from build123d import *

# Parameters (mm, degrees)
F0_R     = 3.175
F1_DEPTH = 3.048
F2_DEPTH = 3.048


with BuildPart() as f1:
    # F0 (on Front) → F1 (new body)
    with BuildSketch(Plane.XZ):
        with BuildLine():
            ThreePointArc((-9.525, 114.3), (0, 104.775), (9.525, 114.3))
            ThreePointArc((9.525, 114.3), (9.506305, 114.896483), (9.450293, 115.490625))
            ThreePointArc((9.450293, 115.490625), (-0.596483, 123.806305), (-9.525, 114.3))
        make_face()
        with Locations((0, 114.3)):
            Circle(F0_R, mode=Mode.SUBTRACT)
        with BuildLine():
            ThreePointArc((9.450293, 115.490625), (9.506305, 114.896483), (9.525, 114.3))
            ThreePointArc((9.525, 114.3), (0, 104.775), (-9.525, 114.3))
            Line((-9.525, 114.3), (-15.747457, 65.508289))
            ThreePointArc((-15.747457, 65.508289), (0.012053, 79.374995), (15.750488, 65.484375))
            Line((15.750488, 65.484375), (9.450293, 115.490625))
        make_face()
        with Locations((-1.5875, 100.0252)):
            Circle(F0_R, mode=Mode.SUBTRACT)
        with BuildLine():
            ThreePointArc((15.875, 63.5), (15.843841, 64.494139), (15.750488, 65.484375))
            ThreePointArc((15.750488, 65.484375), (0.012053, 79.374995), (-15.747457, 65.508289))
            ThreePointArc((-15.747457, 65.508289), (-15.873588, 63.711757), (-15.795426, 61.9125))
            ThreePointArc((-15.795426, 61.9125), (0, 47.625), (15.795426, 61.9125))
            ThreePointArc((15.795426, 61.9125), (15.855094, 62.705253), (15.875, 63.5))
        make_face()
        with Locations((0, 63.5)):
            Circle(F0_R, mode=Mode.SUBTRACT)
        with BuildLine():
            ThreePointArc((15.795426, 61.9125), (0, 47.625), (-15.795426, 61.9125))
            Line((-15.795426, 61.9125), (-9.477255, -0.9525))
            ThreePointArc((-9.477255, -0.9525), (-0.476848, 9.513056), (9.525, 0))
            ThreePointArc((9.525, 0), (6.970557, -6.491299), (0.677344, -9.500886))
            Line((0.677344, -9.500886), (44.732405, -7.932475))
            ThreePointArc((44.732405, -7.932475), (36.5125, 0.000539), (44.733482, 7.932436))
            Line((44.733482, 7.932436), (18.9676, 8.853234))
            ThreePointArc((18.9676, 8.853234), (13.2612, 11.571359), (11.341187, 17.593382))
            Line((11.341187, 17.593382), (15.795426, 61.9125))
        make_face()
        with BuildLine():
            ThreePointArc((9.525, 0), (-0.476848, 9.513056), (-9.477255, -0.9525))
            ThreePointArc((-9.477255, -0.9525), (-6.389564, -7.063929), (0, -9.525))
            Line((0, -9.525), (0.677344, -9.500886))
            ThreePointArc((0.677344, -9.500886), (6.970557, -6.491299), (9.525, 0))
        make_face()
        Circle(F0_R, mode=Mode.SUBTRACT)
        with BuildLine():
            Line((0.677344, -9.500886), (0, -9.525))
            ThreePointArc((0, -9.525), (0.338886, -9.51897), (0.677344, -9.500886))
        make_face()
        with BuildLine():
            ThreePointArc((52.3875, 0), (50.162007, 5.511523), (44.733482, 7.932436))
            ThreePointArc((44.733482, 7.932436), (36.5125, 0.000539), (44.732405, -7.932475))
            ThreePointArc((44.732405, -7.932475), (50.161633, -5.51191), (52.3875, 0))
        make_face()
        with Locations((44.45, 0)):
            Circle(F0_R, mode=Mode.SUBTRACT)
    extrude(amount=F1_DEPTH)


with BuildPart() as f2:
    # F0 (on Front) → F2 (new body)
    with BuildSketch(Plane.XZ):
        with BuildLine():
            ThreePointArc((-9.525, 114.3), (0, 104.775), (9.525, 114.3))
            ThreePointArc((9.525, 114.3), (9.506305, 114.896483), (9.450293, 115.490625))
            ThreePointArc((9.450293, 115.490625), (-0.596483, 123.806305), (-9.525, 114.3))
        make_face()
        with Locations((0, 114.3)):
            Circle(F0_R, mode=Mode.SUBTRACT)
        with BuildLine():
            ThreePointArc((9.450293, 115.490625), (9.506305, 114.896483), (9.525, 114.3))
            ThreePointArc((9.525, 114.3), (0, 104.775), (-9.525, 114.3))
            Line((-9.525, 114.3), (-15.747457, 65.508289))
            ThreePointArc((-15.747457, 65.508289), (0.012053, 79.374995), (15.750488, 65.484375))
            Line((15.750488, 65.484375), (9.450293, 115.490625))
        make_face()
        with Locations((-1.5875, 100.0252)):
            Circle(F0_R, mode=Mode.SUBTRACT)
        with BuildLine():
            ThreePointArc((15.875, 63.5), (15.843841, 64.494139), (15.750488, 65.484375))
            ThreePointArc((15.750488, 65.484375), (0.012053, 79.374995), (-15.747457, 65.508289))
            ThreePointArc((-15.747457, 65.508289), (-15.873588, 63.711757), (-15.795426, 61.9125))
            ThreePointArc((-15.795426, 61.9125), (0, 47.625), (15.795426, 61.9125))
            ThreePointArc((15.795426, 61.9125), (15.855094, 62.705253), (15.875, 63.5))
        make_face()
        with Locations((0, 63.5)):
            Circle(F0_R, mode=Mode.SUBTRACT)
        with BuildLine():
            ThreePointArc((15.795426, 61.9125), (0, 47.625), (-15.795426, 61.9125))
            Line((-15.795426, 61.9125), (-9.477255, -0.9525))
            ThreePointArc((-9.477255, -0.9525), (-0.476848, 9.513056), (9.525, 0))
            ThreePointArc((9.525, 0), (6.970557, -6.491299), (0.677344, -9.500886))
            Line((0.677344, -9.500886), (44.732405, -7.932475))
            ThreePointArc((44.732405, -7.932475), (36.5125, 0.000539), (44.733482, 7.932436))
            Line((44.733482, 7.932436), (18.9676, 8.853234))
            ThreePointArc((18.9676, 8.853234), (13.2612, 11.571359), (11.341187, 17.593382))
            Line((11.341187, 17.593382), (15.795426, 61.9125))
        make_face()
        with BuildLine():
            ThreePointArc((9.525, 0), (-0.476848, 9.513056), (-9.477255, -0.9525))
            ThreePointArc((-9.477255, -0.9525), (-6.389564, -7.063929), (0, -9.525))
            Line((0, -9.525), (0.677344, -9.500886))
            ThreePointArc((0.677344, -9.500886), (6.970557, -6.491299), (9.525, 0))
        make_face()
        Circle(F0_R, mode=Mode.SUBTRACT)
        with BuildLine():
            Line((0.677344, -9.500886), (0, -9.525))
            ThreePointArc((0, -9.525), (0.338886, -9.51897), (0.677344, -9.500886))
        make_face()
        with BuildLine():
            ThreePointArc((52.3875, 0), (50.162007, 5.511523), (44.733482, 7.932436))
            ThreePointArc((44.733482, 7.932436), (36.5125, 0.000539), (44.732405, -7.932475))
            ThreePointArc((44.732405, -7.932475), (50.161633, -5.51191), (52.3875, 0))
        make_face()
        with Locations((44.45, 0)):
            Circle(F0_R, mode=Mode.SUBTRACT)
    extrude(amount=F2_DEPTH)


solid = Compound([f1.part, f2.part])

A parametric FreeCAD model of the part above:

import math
import FreeCAD as App
import Part
import Sketcher
Q = App.Units.Quantity

doc = App.newDocument("Part")
params = doc.addObject("Spreadsheet::Sheet", "Params")
for row, (alias, value) in enumerate([
    ("sketch1_diameter", "0.25 in"),
    ("sketch1_diameter2", "0.25 in"),
    ("sketch1_diameter3", "0.25 in"),
    ("sketch1_diameter4", "0.25 in"),
    ("sketch1_diameter5", "0.25 in"),
    ("pad1_length", "0.12 in"),
    ("sketch2_diameter", "0.25 in"),
    ("sketch2_diameter2", "0.25 in"),
    ("sketch2_diameter3", "0.25 in"),
    ("sketch2_diameter4", "0.25 in"),
    ("sketch2_diameter5", "0.25 in"),
    ("pad2_length", "0.12 in"),
], start=1):
    params.set(f"A{row}", alias)
    params.set(f"B{row}", "=" + value)
    params.setAlias(f"B{row}", alias)

body = doc.addObject("PartDesign::Body", "Body")

# Sketch on XZ plane
sketch1 = body.newObject("Sketcher::SketchObject", "Sketch")
sketch1.AttachmentSupport = (doc.getObject("XZ_Plane"), [""])
sketch1.MapMode = "FlatFace"
sketch1.addGeometry([
    Part.ArcOfCircle(Part.Circle(App.Vector(0, 114.3, 0), App.Vector(0, 0, 1), 9.525), math.radians(7.180755), math.radians(180)),  # 0
    Part.LineSegment(App.Vector(-9.525, 114.3, 0), App.Vector(-15.747457, 65.508289, 0)),  # 1
    Part.ArcOfCircle(Part.Circle(App.Vector(-0.000021, 63.499999, 0), App.Vector(0, 0, 1), 15.874979), math.radians(172.732229), math.radians(185.739173)),  # 2
    Part.LineSegment(App.Vector(-15.795426, 61.9125, 0), App.Vector(-9.477255, -0.9525, 0)),  # 3
    Part.ArcOfCircle(Part.Circle(App.Vector(0, 0, 0), App.Vector(0, 0, 1), 9.525), math.radians(-174.26083), math.radians(-90.000002)),  # 4
    Part.ArcOfCircle(Part.Circle(App.Vector(0.000022, -0.000517, 0), App.Vector(0, 0, 1), 9.524483), math.radians(-90.000132), math.radians(-85.922038)),  # 5
    Part.LineSegment(App.Vector(0.677344, -9.500886, 0), App.Vector(44.732405, -7.932475, 0)),  # 6
    Part.ArcOfCircle(Part.Circle(App.Vector(44.449999, 0.000001, 0), App.Vector(0, 0, 1), 7.937501), math.radians(-87.961059), math.radians(-0.000005)),  # 7
    Part.ArcOfCircle(Part.Circle(App.Vector(44.450001, 0.000001, 0), App.Vector(0, 0, 1), 7.937499), math.radians(-0.000005), math.radians(87.953294)),  # 8
    Part.LineSegment(App.Vector(44.733482, 7.932436, 0), App.Vector(18.9676, 8.853234, 0)),  # 9
    Part.ArcOfCircle(Part.Circle(App.Vector(19.251535, 16.798361, 0), App.Vector(0, 0, 1), 7.950199), math.radians(174.260822), math.radians(267.953292)),  # 10
    Part.LineSegment(App.Vector(11.341187, 17.593382, 0), App.Vector(15.795426, 61.9125, 0)),  # 11
    Part.ArcOfCircle(Part.Circle(App.Vector(-0.000084, 63.5, 0), App.Vector(0, 0, 1), 15.875084), math.radians(-5.73914), math.radians(0)),  # 12
    Part.ArcOfCircle(Part.Circle(App.Vector(-0.000171, 63.499987, 0), App.Vector(0, 0, 1), 15.875171), math.radians(0.000047), math.radians(7.180725)),  # 13
    Part.LineSegment(App.Vector(15.750488, 65.484375, 0), App.Vector(9.450293, 115.490625, 0)),  # 14
    Part.Circle(App.Vector(0, 0, 0), App.Vector(0, 0, 1), 3.175),  # 15
    Part.Circle(App.Vector(44.45, 0, 0), App.Vector(0, 0, 1), 3.175),  # 16
    Part.Circle(App.Vector(0, 63.5, 0), App.Vector(0, 0, 1), 3.175),  # 17
    Part.Circle(App.Vector(-1.5875, 100.0252, 0), App.Vector(0, 0, 1), 3.175),  # 18
    Part.Circle(App.Vector(0, 114.3, 0), App.Vector(0, 0, 1), 3.175),  # 19
], False)
sketch1.addConstraint([
    Sketcher.Constraint("Coincident", 0, 2, 1, 1),
    Sketcher.Constraint("Coincident", 1, 2, 2, 1),
    Sketcher.Constraint("Coincident", 2, 2, 3, 1),
    Sketcher.Constraint("Coincident", 3, 2, 4, 1),
    Sketcher.Constraint("Coincident", 4, 2, 5, 1),
    Sketcher.Constraint("Coincident", 5, 2, 6, 1),
    Sketcher.Constraint("Coincident", 6, 2, 7, 1),
    Sketcher.Constraint("Coincident", 7, 2, 8, 1),
    Sketcher.Constraint("Coincident", 8, 2, 9, 1),
    Sketcher.Constraint("Coincident", 9, 2, 10, 2),
    Sketcher.Constraint("Coincident", 10, 1, 11, 1),
    Sketcher.Constraint("Coincident", 11, 2, 12, 1),
    Sketcher.Constraint("Coincident", 12, 2, 13, 1),
    Sketcher.Constraint("Coincident", 13, 2, 14, 1),
    Sketcher.Constraint("Coincident", 14, 2, 0, 1),
    Sketcher.Constraint("Coincident", 4, 3, -1, 1),
    Sketcher.Constraint("Coincident", 15, 3, -1, 1),
    Sketcher.Constraint("Coincident", 8, 3, 7, 3),
    Sketcher.Constraint("Coincident", 16, 3, 7, 3),
    Sketcher.Constraint("Coincident", 19, 3, 0, 3),
    Sketcher.Constraint("PointOnObject", 0, 3, -2),
    Sketcher.Constraint("PointOnObject", 7, 3, -1),
    Sketcher.Constraint("PointOnObject", 17, 3, -2),
    Sketcher.Constraint("PointOnObject", 4, 2, -2),
    Sketcher.Constraint("PointOnObject", 7, 2, -1),
    Sketcher.Constraint("Diameter", 15, Q("0.25 in")),
    Sketcher.Constraint("Diameter", 16, Q("0.25 in")),
    Sketcher.Constraint("Diameter", 17, Q("0.25 in")),
    Sketcher.Constraint("Diameter", 18, Q("0.25 in")),
    Sketcher.Constraint("Diameter", 19, Q("0.25 in")),
    Sketcher.Constraint("Radius", 0, Q("0.375 in")),
    Sketcher.Constraint("Radius", 4, Q("0.375 in")),
    Sketcher.Constraint("Radius", 7, Q("0.3125 in")),
    Sketcher.Constraint("Radius", 10, Q("0.313 in")),
    Sketcher.Constraint("DistanceY", 2, 3, 0, 3, Q("2.0000001 in")),
    Sketcher.Constraint("DistanceY", 12, 3, 0, 3, Q("2 in")),
    Sketcher.Constraint("DistanceY", 17, 3, 0, 3, Q("2 in")),
    Sketcher.Constraint("DistanceY", 12, 3, 0, 2, Q("2 in")),
    Sketcher.Constraint("DistanceY", -1, 1, 0, 3, Q("4.5 in")),
    Sketcher.Constraint("DistanceY", -1, 1, 12, 2, Q("2.5 in")),
    Sketcher.Constraint("DistanceX", -1, 1, 7, 3, Q("1.75 in")),
    Sketcher.Constraint("DistanceX", 18, 3, -1, 1, Q("0.0625 in")),
    Sketcher.Constraint("DistanceY", -1, 1, 18, 3, Q("3.938 in")),
    Sketcher.Constraint("DistanceY", -1, 1, 2, 2, Q("2.4375 in")),
    Sketcher.Constraint("DistanceY", -1, 1, 11, 2, Q("2.4375 in")),
    Sketcher.Constraint("DistanceX", -1, 1, 12, 2, Q("0.625 in")),
    Sketcher.Constraint("DistanceY", -1, 1, 13, 2, Q("2.578125 in")),
    Sketcher.Constraint("DistanceY", -1, 1, 14, 2, Q("4.546875 in")),
    Sketcher.Constraint("Radius", 2, Q("15.874979 mm")),
    Sketcher.Constraint("Radius", 13, Q("15.875171 mm")),
    Sketcher.Constraint("DistanceY", 3, 2, -1, 1, Q("0.0375 in")),
    Sketcher.Constraint("Radius", 5, Q("9.524483 mm")),
    Sketcher.Constraint("Radius", 12, Q("15.875084 mm")),
    Sketcher.Constraint("DistanceY", 10, 3, 10, 1, Q("0.0313 in")),
    Sketcher.Constraint("DistanceX", -1, 1, 9, 2, Q("18.9676 mm")),
    Sketcher.Constraint("DistanceY", 13, 3, 1, 2, Q("2.008302 mm")),
    Sketcher.Constraint("DistanceX", 3, 2, 5, 2, Q("10.154599 mm")),
    Sketcher.Constraint("DistanceY", 5, 3, 10, 1, Q("17.593899 mm")),
    Sketcher.Constraint("Distance", 1, Q("49.186889 mm")),
    Sketcher.Constraint("Distance", 6, Q("44.082971 mm")),
    Sketcher.Constraint("Distance", 9, Q("25.78233 mm")),
    Sketcher.Constraint("Distance", 11, Q("44.54239 mm")),
    Sketcher.Constraint("DistanceY", -1, 1, 1, 2, Q("65.508289 mm")),
    Sketcher.Constraint("DistanceX", 5, 3, 8, 3, Q("44.449979 mm")),
])
sketch1.setExpression("Constraints[25]", "Params.sketch1_diameter")
sketch1.setExpression("Constraints[26]", "Params.sketch1_diameter2")
sketch1.setExpression("Constraints[27]", "Params.sketch1_diameter3")
sketch1.setExpression("Constraints[28]", "Params.sketch1_diameter4")
sketch1.setExpression("Constraints[29]", "Params.sketch1_diameter5")
pad1 = body.newObject("PartDesign::Pad", "Pad")
pad1.Profile = sketch1
pad1.setExpression("Length", "Params.pad1_length")
body2 = doc.addObject("PartDesign::Body", "Body001")

# Sketch on XZ plane
sketch2 = body2.newObject("Sketcher::SketchObject", "Sketch001")
sketch2.AttachmentSupport = (doc.getObject("XZ_Plane001"), [""])
sketch2.MapMode = "FlatFace"
sketch2.addGeometry([
    Part.ArcOfCircle(Part.Circle(App.Vector(0, 114.3, 0), App.Vector(0, 0, 1), 9.525), math.radians(7.180755), math.radians(180)),  # 0
    Part.LineSegment(App.Vector(-9.525, 114.3, 0), App.Vector(-15.747457, 65.508289, 0)),  # 1
    Part.ArcOfCircle(Part.Circle(App.Vector(-0.000021, 63.499999, 0), App.Vector(0, 0, 1), 15.874979), math.radians(172.732229), math.radians(185.739173)),  # 2
    Part.LineSegment(App.Vector(-15.795426, 61.9125, 0), App.Vector(-9.477255, -0.9525, 0)),  # 3
    Part.ArcOfCircle(Part.Circle(App.Vector(0, 0, 0), App.Vector(0, 0, 1), 9.525), math.radians(-174.26083), math.radians(-90.000002)),  # 4
    Part.ArcOfCircle(Part.Circle(App.Vector(0.000022, -0.000517, 0), App.Vector(0, 0, 1), 9.524483), math.radians(-90.000132), math.radians(-85.922038)),  # 5
    Part.LineSegment(App.Vector(0.677344, -9.500886, 0), App.Vector(44.732405, -7.932475, 0)),  # 6
    Part.ArcOfCircle(Part.Circle(App.Vector(44.449999, 0.000001, 0), App.Vector(0, 0, 1), 7.937501), math.radians(-87.961059), math.radians(-0.000005)),  # 7
    Part.ArcOfCircle(Part.Circle(App.Vector(44.450001, 0.000001, 0), App.Vector(0, 0, 1), 7.937499), math.radians(-0.000005), math.radians(87.953294)),  # 8
    Part.LineSegment(App.Vector(44.733482, 7.932436, 0), App.Vector(18.9676, 8.853234, 0)),  # 9
    Part.ArcOfCircle(Part.Circle(App.Vector(19.251535, 16.798361, 0), App.Vector(0, 0, 1), 7.950199), math.radians(174.260822), math.radians(267.953292)),  # 10
    Part.LineSegment(App.Vector(11.341187, 17.593382, 0), App.Vector(15.795426, 61.9125, 0)),  # 11
    Part.ArcOfCircle(Part.Circle(App.Vector(-0.000084, 63.5, 0), App.Vector(0, 0, 1), 15.875084), math.radians(-5.73914), math.radians(0)),  # 12
    Part.ArcOfCircle(Part.Circle(App.Vector(-0.000171, 63.499987, 0), App.Vector(0, 0, 1), 15.875171), math.radians(0.000047), math.radians(7.180725)),  # 13
    Part.LineSegment(App.Vector(15.750488, 65.484375, 0), App.Vector(9.450293, 115.490625, 0)),  # 14
    Part.Circle(App.Vector(0, 0, 0), App.Vector(0, 0, 1), 3.175),  # 15
    Part.Circle(App.Vector(44.45, 0, 0), App.Vector(0, 0, 1), 3.175),  # 16
    Part.Circle(App.Vector(0, 63.5, 0), App.Vector(0, 0, 1), 3.175),  # 17
    Part.Circle(App.Vector(-1.5875, 100.0252, 0), App.Vector(0, 0, 1), 3.175),  # 18
    Part.Circle(App.Vector(0, 114.3, 0), App.Vector(0, 0, 1), 3.175),  # 19
], False)
sketch2.addConstraint([
    Sketcher.Constraint("Coincident", 0, 2, 1, 1),
    Sketcher.Constraint("Coincident", 1, 2, 2, 1),
    Sketcher.Constraint("Coincident", 2, 2, 3, 1),
    Sketcher.Constraint("Coincident", 3, 2, 4, 1),
    Sketcher.Constraint("Coincident", 4, 2, 5, 1),
    Sketcher.Constraint("Coincident", 5, 2, 6, 1),
    Sketcher.Constraint("Coincident", 6, 2, 7, 1),
    Sketcher.Constraint("Coincident", 7, 2, 8, 1),
    Sketcher.Constraint("Coincident", 8, 2, 9, 1),
    Sketcher.Constraint("Coincident", 9, 2, 10, 2),
    Sketcher.Constraint("Coincident", 10, 1, 11, 1),
    Sketcher.Constraint("Coincident", 11, 2, 12, 1),
    Sketcher.Constraint("Coincident", 12, 2, 13, 1),
    Sketcher.Constraint("Coincident", 13, 2, 14, 1),
    Sketcher.Constraint("Coincident", 14, 2, 0, 1),
    Sketcher.Constraint("Coincident", 4, 3, -1, 1),
    Sketcher.Constraint("Coincident", 15, 3, -1, 1),
    Sketcher.Constraint("Coincident", 8, 3, 7, 3),
    Sketcher.Constraint("Coincident", 16, 3, 7, 3),
    Sketcher.Constraint("Coincident", 19, 3, 0, 3),
    Sketcher.Constraint("PointOnObject", 0, 3, -2),
    Sketcher.Constraint("PointOnObject", 7, 3, -1),
    Sketcher.Constraint("PointOnObject", 17, 3, -2),
    Sketcher.Constraint("PointOnObject", 4, 2, -2),
    Sketcher.Constraint("PointOnObject", 7, 2, -1),
    Sketcher.Constraint("Diameter", 15, Q("0.25 in")),
    Sketcher.Constraint("Diameter", 16, Q("0.25 in")),
    Sketcher.Constraint("Diameter", 17, Q("0.25 in")),
    Sketcher.Constraint("Diameter", 18, Q("0.25 in")),
    Sketcher.Constraint("Diameter", 19, Q("0.25 in")),
    Sketcher.Constraint("Radius", 0, Q("0.375 in")),
    Sketcher.Constraint("Radius", 4, Q("0.375 in")),
    Sketcher.Constraint("Radius", 7, Q("0.3125 in")),
    Sketcher.Constraint("Radius", 10, Q("0.313 in")),
    Sketcher.Constraint("DistanceY", 2, 3, 0, 3, Q("2.0000001 in")),
    Sketcher.Constraint("DistanceY", 12, 3, 0, 3, Q("2 in")),
    Sketcher.Constraint("DistanceY", 17, 3, 0, 3, Q("2 in")),
    Sketcher.Constraint("DistanceY", 12, 3, 0, 2, Q("2 in")),
    Sketcher.Constraint("DistanceY", -1, 1, 0, 3, Q("4.5 in")),
    Sketcher.Constraint("DistanceY", -1, 1, 12, 2, Q("2.5 in")),
    Sketcher.Constraint("DistanceX", -1, 1, 7, 3, Q("1.75 in")),
    Sketcher.Constraint("DistanceX", 18, 3, -1, 1, Q("0.0625 in")),
    Sketcher.Constraint("DistanceY", -1, 1, 18, 3, Q("3.938 in")),
    Sketcher.Constraint("DistanceY", -1, 1, 2, 2, Q("2.4375 in")),
    Sketcher.Constraint("DistanceY", -1, 1, 11, 2, Q("2.4375 in")),
    Sketcher.Constraint("DistanceX", -1, 1, 12, 2, Q("0.625 in")),
    Sketcher.Constraint("DistanceY", -1, 1, 13, 2, Q("2.578125 in")),
    Sketcher.Constraint("DistanceY", -1, 1, 14, 2, Q("4.546875 in")),
    Sketcher.Constraint("Radius", 2, Q("15.874979 mm")),
    Sketcher.Constraint("Radius", 13, Q("15.875171 mm")),
    Sketcher.Constraint("DistanceY", 3, 2, -1, 1, Q("0.0375 in")),
    Sketcher.Constraint("Radius", 5, Q("9.524483 mm")),
    Sketcher.Constraint("Radius", 12, Q("15.875084 mm")),
    Sketcher.Constraint("DistanceY", 10, 3, 10, 1, Q("0.0313 in")),
    Sketcher.Constraint("DistanceX", -1, 1, 9, 2, Q("18.9676 mm")),
    Sketcher.Constraint("DistanceY", 13, 3, 1, 2, Q("2.008302 mm")),
    Sketcher.Constraint("DistanceX", 3, 2, 5, 2, Q("10.154599 mm")),
    Sketcher.Constraint("DistanceY", 5, 3, 10, 1, Q("17.593899 mm")),
    Sketcher.Constraint("Distance", 1, Q("49.186889 mm")),
    Sketcher.Constraint("Distance", 6, Q("44.082971 mm")),
    Sketcher.Constraint("Distance", 9, Q("25.78233 mm")),
    Sketcher.Constraint("Distance", 11, Q("44.54239 mm")),
    Sketcher.Constraint("DistanceY", -1, 1, 1, 2, Q("65.508289 mm")),
    Sketcher.Constraint("DistanceX", 5, 3, 8, 3, Q("44.449979 mm")),
])
sketch2.setExpression("Constraints[25]", "Params.sketch2_diameter")
sketch2.setExpression("Constraints[26]", "Params.sketch2_diameter2")
sketch2.setExpression("Constraints[27]", "Params.sketch2_diameter3")
sketch2.setExpression("Constraints[28]", "Params.sketch2_diameter4")
sketch2.setExpression("Constraints[29]", "Params.sketch2_diameter5")
pad2 = body2.newObject("PartDesign::Pad", "Pad001")
pad2.Profile = sketch2
pad2.setExpression("Length", "Params.pad2_length")

doc.recompute()
